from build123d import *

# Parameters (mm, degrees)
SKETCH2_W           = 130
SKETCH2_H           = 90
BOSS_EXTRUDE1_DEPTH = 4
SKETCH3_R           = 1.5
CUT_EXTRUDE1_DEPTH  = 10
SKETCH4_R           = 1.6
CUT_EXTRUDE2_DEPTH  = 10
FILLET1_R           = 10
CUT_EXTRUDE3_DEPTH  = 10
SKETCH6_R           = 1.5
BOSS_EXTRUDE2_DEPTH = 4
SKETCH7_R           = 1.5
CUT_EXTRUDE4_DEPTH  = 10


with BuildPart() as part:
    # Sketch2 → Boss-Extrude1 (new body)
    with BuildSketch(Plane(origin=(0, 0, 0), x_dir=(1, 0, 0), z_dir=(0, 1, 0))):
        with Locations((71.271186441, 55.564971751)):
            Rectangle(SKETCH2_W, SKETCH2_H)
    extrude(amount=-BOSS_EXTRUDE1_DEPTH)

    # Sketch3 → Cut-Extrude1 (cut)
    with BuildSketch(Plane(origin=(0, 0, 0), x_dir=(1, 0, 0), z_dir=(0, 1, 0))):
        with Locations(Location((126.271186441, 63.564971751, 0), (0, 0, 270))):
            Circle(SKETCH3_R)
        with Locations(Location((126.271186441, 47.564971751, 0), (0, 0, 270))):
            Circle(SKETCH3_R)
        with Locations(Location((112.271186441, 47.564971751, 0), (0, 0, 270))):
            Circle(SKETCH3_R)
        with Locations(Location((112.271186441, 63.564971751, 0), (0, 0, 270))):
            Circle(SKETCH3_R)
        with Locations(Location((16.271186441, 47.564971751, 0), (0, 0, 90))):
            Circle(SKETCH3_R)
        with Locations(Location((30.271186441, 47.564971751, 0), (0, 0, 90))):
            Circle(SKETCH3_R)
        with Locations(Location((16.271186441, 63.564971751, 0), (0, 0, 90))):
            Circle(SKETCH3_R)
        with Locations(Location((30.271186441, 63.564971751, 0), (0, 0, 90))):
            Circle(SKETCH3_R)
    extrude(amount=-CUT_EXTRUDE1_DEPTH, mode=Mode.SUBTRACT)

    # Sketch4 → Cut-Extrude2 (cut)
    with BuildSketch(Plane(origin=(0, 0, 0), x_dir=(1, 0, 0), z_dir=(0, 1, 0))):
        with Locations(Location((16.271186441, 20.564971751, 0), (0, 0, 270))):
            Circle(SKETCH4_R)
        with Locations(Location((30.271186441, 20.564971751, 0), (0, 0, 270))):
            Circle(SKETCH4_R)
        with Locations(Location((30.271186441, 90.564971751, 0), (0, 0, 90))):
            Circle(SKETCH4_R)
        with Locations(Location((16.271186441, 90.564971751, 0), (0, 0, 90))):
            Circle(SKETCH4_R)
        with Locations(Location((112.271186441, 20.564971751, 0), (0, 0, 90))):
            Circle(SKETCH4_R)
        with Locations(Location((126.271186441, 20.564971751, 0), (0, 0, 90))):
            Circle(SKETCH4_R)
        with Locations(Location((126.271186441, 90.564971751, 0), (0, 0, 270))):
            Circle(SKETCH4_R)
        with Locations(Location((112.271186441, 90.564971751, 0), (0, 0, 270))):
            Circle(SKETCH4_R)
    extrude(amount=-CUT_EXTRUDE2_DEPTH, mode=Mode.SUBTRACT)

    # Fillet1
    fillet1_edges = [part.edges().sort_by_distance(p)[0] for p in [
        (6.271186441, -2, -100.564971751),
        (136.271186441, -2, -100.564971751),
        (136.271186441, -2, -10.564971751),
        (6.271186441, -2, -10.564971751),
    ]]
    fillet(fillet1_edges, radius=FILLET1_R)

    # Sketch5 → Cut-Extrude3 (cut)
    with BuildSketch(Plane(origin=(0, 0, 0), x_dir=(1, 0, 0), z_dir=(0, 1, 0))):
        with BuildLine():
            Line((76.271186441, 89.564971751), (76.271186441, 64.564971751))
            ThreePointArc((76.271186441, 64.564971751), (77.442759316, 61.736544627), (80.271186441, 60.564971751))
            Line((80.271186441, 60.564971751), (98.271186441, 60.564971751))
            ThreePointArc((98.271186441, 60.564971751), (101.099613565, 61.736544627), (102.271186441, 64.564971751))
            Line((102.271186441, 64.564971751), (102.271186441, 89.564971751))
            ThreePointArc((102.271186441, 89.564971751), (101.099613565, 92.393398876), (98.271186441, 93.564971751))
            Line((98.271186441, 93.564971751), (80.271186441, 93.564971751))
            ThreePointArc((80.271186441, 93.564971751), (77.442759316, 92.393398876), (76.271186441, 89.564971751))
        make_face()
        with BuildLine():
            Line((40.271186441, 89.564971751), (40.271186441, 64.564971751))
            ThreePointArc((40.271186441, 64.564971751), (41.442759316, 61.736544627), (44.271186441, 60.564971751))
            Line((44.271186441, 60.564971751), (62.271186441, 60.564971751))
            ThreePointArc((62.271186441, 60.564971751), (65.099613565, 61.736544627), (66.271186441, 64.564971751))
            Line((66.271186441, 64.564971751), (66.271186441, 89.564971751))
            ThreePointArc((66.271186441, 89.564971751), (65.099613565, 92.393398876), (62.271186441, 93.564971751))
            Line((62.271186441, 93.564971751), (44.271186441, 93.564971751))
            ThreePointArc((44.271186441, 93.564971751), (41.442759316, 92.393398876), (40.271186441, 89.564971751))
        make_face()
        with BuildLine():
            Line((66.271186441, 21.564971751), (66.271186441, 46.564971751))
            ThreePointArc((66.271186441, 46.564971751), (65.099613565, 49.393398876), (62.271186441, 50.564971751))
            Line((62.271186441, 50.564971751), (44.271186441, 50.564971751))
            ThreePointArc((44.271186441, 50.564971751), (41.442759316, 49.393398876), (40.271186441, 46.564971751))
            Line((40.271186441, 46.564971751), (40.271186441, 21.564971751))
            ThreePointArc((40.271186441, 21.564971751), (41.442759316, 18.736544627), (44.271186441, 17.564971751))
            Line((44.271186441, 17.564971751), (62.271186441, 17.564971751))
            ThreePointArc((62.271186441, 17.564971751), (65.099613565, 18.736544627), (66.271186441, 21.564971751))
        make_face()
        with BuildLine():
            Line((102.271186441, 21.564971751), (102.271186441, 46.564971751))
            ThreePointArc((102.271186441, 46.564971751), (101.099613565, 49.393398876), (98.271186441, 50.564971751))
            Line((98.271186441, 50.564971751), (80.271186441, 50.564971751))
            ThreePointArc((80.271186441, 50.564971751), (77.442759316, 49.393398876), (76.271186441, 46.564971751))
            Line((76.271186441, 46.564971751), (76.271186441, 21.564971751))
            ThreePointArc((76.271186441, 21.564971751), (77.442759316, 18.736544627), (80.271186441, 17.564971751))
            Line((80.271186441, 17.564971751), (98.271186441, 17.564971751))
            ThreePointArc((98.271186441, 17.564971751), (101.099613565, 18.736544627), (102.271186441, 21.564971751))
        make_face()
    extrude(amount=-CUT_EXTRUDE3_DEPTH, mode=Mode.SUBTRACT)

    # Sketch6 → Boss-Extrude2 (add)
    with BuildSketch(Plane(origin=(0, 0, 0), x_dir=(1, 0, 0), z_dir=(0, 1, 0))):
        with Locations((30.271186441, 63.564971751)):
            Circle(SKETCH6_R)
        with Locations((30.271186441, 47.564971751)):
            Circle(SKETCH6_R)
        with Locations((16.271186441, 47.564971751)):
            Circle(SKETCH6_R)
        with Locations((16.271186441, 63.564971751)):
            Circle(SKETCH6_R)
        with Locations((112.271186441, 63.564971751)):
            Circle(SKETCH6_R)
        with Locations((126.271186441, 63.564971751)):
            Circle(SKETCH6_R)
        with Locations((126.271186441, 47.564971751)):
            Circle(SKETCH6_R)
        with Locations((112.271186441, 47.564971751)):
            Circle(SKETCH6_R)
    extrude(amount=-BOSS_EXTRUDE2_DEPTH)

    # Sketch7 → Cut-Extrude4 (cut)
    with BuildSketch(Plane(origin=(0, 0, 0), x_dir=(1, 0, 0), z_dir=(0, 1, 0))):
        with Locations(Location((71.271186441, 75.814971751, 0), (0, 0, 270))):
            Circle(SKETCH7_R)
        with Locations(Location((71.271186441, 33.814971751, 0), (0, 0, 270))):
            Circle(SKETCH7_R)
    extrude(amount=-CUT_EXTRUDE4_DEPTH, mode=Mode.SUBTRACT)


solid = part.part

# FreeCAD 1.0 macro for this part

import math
import FreeCAD as App
import Part
import Sketcher


def edges_at(feature, points):
    """Names of the edges that pass closest to the given points."""
    edges = feature.Shape.Edges
    near = lambda p: min(range(len(edges)), key=lambda i: edges[i].distToShape(Part.Vertex(*p))[0])
    return sorted({f"Edge{near(p) + 1}" for p in points})


def add_polygon(sketch, points):
    """Adds a closed chain of lines whose ends are joined by coincident constraints."""
    first, n = sketch.GeometryCount, len(points)
    for a, b in zip(points, points[1:] + points[:1]):
        sketch.addGeometry(Part.LineSegment(App.Vector(*a, 0), App.Vector(*b, 0)), False)
    for i in range(n):
        sketch.addConstraint(Sketcher.Constraint("Coincident", first + i, 2, first + (i + 1) % n, 1))

doc = App.newDocument("Part")
params = doc.addObject("Spreadsheet::Sheet", "Params")
for row, (alias, value) in enumerate([
    ("sketch1_width", "130 mm"),
    ("sketch1_height", "90 mm"),
    ("pad1_length", "4 mm"),
    ("sketch2_diameter", "3 mm"),
    ("pocket1_length", "10 mm"),
    ("sketch3_diameter", "3.2 mm"),
    ("pocket2_length", "10 mm"),
    ("fillet_radius", "10 mm"),
    ("sketch4_radius", "4 mm"),
    ("sketch4_width", "18 mm"),
    ("sketch4_height", "25 mm"),
    ("pocket3_length", "10 mm"),
    ("sketch5_diameter", "3 mm"),
    ("pad2_length", "4 mm"),
    ("sketch6_diameter", "3 mm"),
    ("pocket4_length", "10 mm"),
], start=1):
    params.set(f"A{row}", alias)
    params.set(f"B{row}", "=" + value)
    params.setAlias(f"B{row}", alias)

body = doc.addObject("PartDesign::Body", "Body")

# Sketch on XZ plane
sketch1 = body.newObject("Sketcher::SketchObject", "Sketch")
sketch1.AttachmentSupport = (doc.getObject("XZ_Plane"), [""])
sketch1.MapMode = "FlatFace"
add_polygon(sketch1, [(6.271186, -100.564972), (6.271186, -10.564972), (136.271186, -10.564972), (136.271186, -100.564972)])  # lines 0-3
sketch1.addConstraint(Sketcher.Constraint("Vertical", 0))
sketch1.addConstraint(Sketcher.Constraint("Horizontal", 1))
sketch1.addConstraint(Sketcher.Constraint("Vertical", 2))
sketch1.addConstraint(Sketcher.Constraint("Horizontal", 3))
sketch1.addConstraint(Sketcher.Constraint("DistanceX", 1, 1, 1, 2, 130.0))
sketch1.addConstraint(Sketcher.Constraint("DistanceY", 0, 1, 0, 2, 90.0))
sketch1.addConstraint(Sketcher.Constraint("DistanceY", 0, 2, -1, 1, 10.564972))
sketch1.addConstraint(Sketcher.Constraint("DistanceX", -1, 1, 0, 2, 6.271186))
sketch1.setExpression("Constraints[8]", "Params.sketch1_width")
sketch1.setExpression("Constraints[9]", "Params.sketch1_height")
pad1 = body.newObject("PartDesign::Pad", "Pad")
pad1.Profile = sketch1
pad1.setExpression("Length", "Params.pad1_length")

# Sketch on XZ plane
sketch2 = body.newObject("Sketcher::SketchObject", "Sketch001")
sketch2.AttachmentSupport = (doc.getObject("XZ_Plane"), [""])
sketch2.MapMode = "FlatFace"
sketch2.addGeometry(Part.Circle(App.Vector(126.271186, -63.564972, 0), App.Vector(0, 0, 1), 1.5), False)
sketch2.addGeometry(Part.Circle(App.Vector(126.271186, -47.564972, 0), App.Vector(0, 0, 1), 1.5), False)
sketch2.addGeometry(Part.Circle(App.Vector(112.271186, -47.564972, 0), App.Vector(0, 0, 1), 1.5), False)
sketch2.addGeometry(Part.Circle(App.Vector(112.271186, -63.564972, 0), App.Vector(0, 0, 1), 1.5), False)
sketch2.addGeometry(Part.Circle(App.Vector(16.271186, -47.564972, 0), App.Vector(0, 0, 1), 1.5), False)
sketch2.addGeometry(Part.Circle(App.Vector(30.271186, -47.564972, 0), App.Vector(0, 0, 1), 1.5), False)
sketch2.addGeometry(Part.Circle(App.Vector(16.271186, -63.564972, 0), App.Vector(0, 0, 1), 1.5), False)
sketch2.addGeometry(Part.Circle(App.Vector(30.271186, -63.564972, 0), App.Vector(0, 0, 1), 1.5), False)
sketch2.addConstraint(Sketcher.Constraint("Equal", 0, 1))
sketch2.addConstraint(Sketcher.Constraint("Equal", 1, 2))
sketch2.addConstraint(Sketcher.Constraint("Equal", 2, 3))
sketch2.addConstraint(Sketcher.Constraint("Equal", 3, 4))
sketch2.addConstraint(Sketcher.Constraint("Equal", 4, 5))
sketch2.addConstraint(Sketcher.Constraint("Equal", 5, 6))
sketch2.addConstraint(Sketcher.Constraint("Equal", 6, 7))
sketch2.addConstraint(Sketcher.Constraint("Horizontal", 1, 3, 2, 3))
sketch2.addConstraint(Sketcher.Constraint("Horizontal", 0, 3, 3, 3))
sketch2.addConstraint(Sketcher.Constraint("Horizontal", 2, 3, 4, 3))
sketch2.addConstraint(Sketcher.Constraint("Horizontal", 4, 3, 5, 3))
sketch2.addConstraint(Sketcher.Constraint("Horizontal", 3, 3, 6, 3))
sketch2.addConstraint(Sketcher.Constraint("Horizontal", 6, 3, 7, 3))
sketch2.addConstraint(Sketcher.Constraint("Vertical", 0, 3, 1, 3))
sketch2.addConstraint(Sketcher.Constraint("Vertical", 2, 3, 3, 3))
sketch2.addConstraint(Sketcher.Constraint("Vertical", 4, 3, 6, 3))
sketch2.addConstraint(Sketcher.Constraint("Vertical", 5, 3, 7, 3))
sketch2.addConstraint(Sketcher.Constraint("Diameter", 0, 3.0))
sketch2.addConstraint(Sketcher.Constraint("DistanceY", 0, 3, 1, 3, 16.0))
sketch2.addConstraint(Sketcher.Constraint("DistanceX", 2, 3, 1, 3, 14.0))
sketch2.addConstraint(Sketcher.Constraint("DistanceX", 4, 3, 2, 3, 96.0))
sketch2.addConstraint(Sketcher.Constraint("DistanceX", 4, 3, 5, 3, 14.0))
sketch2.addConstraint(Sketcher.Constraint("DistanceY", 0, 3, -1, 1, 63.564972))
sketch2.addConstraint(Sketcher.Constraint("DistanceX", -1, 1, 0, 3, 126.271186))
sketch2.setExpression("Constraints[17]", "Params.sketch2_diameter")
pocket1 = body.newObject("PartDesign::Pocket", "Pocket")
pocket1.Profile = sketch2
pocket1.setExpression("Length", "Params.pocket1_length")
pocket1.Reversed = True

# Sketch on XZ plane
sketch3 = body.newObject("Sketcher::SketchObject", "Sketch002")
sketch3.AttachmentSupport = (doc.getObject("XZ_Plane"), [""])
sketch3.MapMode = "FlatFace"
sketch3.addGeometry(Part.Circle(App.Vector(16.271186, -20.564972, 0), App.Vector(0, 0, 1), 1.6), False)
sketch3.addGeometry(Part.Circle(App.Vector(30.271186, -20.564972, 0), App.Vector(0, 0, 1), 1.6), False)
sketch3.addGeometry(Part.Circle(App.Vector(30.271186, -90.564972, 0), App.Vector(0, 0, 1), 1.6), False)
sketch3.addGeometry(Part.Circle(App.Vector(16.271186, -90.564972, 0), App.Vector(0, 0, 1), 1.6), False)
sketch3.addGeometry(Part.Circle(App.Vector(112.271186, -20.564972, 0), App.Vector(0, 0, 1), 1.6), False)
sketch3.addGeometry(Part.Circle(App.Vector(126.271186, -20.564972, 0), App.Vector(0, 0, 1), 1.6), False)
sketch3.addGeometry(Part.Circle(App.Vector(126.271186, -90.564972, 0), App.Vector(0, 0, 1), 1.6), False)
sketch3.addGeometry(Part.Circle(App.Vector(112.271186, -90.564972, 0), App.Vector(0, 0, 1), 1.6), False)
sketch3.addConstraint(Sketcher.Constraint("Equal", 0, 1))
sketch3.addConstraint(Sketcher.Constraint("Equal", 1, 2))
sketch3.addConstraint(Sketcher.Constraint("Equal", 2, 3))
sketch3.addConstraint(Sketcher.Constraint("Equal", 3, 4))
sketch3.addConstraint(Sketcher.Constraint("Equal", 4, 5))
sketch3.addConstraint(Sketcher.Constraint("Equal", 5, 6))
sketch3.addConstraint(Sketcher.Constraint("Equal", 6, 7))
sketch3.addConstraint(Sketcher.Constraint("Horizontal", 0, 3, 1, 3))
sketch3.addConstraint(Sketcher.Constraint("Horizontal", 2, 3, 3, 3))
sketch3.addConstraint(Sketcher.Constraint("Horizontal", 1, 3, 4, 3))
sketch3.addConstraint(Sketcher.Constraint("Horizontal", 4, 3, 5, 3))
sketch3.addConstraint(Sketcher.Constraint("Horizontal", 3, 3, 6, 3))
sketch3.addConstraint(Sketcher.Constraint("Horizontal", 6, 3, 7, 3))
sketch3.addConstraint(Sketcher.Constraint("Vertical", 1, 3, 2, 3))
sketch3.addConstraint(Sketcher.Constraint("Vertical", 0, 3, 3, 3))
sketch3.addConstraint(Sketcher.Constraint("Vertical", 5, 3, 6, 3))
sketch3.addConstraint(Sketcher.Constraint("Vertical", 4, 3, 7, 3))
sketch3.addConstraint(Sketcher.Constraint("Diameter", 0, 3.2))
sketch3.addConstraint(Sketcher.Constraint("DistanceX", 0, 3, 1, 3, 14.0))
sketch3.addConstraint(Sketcher.Constraint("DistanceY", 2, 3, 1, 3, 70.0))
sketch3.addConstraint(Sketcher.Constraint("DistanceX", 1, 3, 4, 3, 82.0))
sketch3.addConstraint(Sketcher.Constraint("DistanceX", 4, 3, 5, 3, 14.0))
sketch3.addConstraint(Sketcher.Constraint("DistanceY", 0, 3, -1, 1, 20.564972))
sketch3.addConstraint(Sketcher.Constraint("DistanceX", -1, 1, 0, 3, 16.271186))
sketch3.setExpression("Constraints[17]", "Params.sketch3_diameter")
pocket2 = body.newObject("PartDesign::Pocket", "Pocket001")
pocket2.Profile = sketch3
pocket2.setExpression("Length", "Params.pocket2_length")
pocket2.Reversed = True
doc.recompute()

fillet = body.newObject("PartDesign::Fillet", "Fillet")
fillet.Base = (pocket2, edges_at(pocket2, [
    (6.271, -2, -100.565),
    (136.271, -2, -100.565),
    (136.271, -2, -10.565),
    (6.271, -2, -10.565),
]))
fillet.setExpression("Radius", "Params.fillet_radius")

# Sketch on XZ plane
sketch4 = body.newObject("Sketcher::SketchObject", "Sketch003")
sketch4.AttachmentSupport = (doc.getObject("XZ_Plane"), [""])
sketch4.MapMode = "FlatFace"
sketch4.addGeometry(Part.LineSegment(App.Vector(76.271186, -89.564972, 0), App.Vector(76.271186, -64.564972, 0)), False)
sketch4.addGeometry(Part.ArcOfCircle(Part.Circle(App.Vector(80.271186, -64.564972, 0), App.Vector(0, 0, 1), 4), math.radians(90), math.radians(180)), False)
sketch4.addGeometry(Part.LineSegment(App.Vector(80.271186, -60.564972, 0), App.Vector(98.271186, -60.564972, 0)), False)
sketch4.addGeometry(Part.ArcOfCircle(Part.Circle(App.Vector(98.271186, -64.564972, 0), App.Vector(0, 0, 1), 4), math.radians(0), math.radians(90)), False)
sketch4.addGeometry(Part.LineSegment(App.Vector(102.271186, -64.564972, 0), App.Vector(102.271186, -89.564972, 0)), False)
sketch4.addGeometry(Part.ArcOfCircle(Part.Circle(App.Vector(98.271186, -89.564972, 0), App.Vector(0, 0, 1), 4), math.radians(-90), math.radians(0)), False)
sketch4.addGeometry(Part.LineSegment(App.Vector(98.271186, -93.564972, 0), App.Vector(80.271186, -93.564972, 0)), False)
sketch4.addGeometry(Part.ArcOfCircle(Part.Circle(App.Vector(80.271186, -89.564972, 0), App.Vector(0, 0, 1), 4), math.radians(180), math.radians(270)), False)
sketch4.addGeometry(Part.LineSegment(App.Vector(40.271186, -89.564972, 0), App.Vector(40.271186, -64.564972, 0)), False)
sketch4.addGeometry(Part.ArcOfCircle(Part.Circle(App.Vector(44.271186, -64.564972, 0), App.Vector(0, 0, 1), 4), math.radians(90), math.radians(180)), False)
sketch4.addGeometry(Part.LineSegment(App.Vector(44.271186, -60.564972, 0), App.Vector(62.271186, -60.564972, 0)), False)
sketch4.addGeometry(Part.ArcOfCircle(Part.Circle(App.Vector(62.271186, -64.564972, 0), App.Vector(0, 0, 1), 4), math.radians(0), math.radians(90)), False)
sketch4.addGeometry(Part.LineSegment(App.Vector(66.271186, -64.564972, 0), App.Vector(66.271186, -89.564972, 0)), False)
sketch4.addGeometry(Part.ArcOfCircle(Part.Circle(App.Vector(62.271186, -89.564972, 0), App.Vector(0, 0, 1), 4), math.radians(-90), math.radians(0)), False)
sketch4.addGeometry(Part.LineSegment(App.Vector(62.271186, -93.564972, 0), App.Vector(44.271186, -93.564972, 0)), False)
sketch4.addGeometry(Part.ArcOfCircle(Part.Circle(App.Vector(44.271186, -89.564972, 0), App.Vector(0, 0, 1), 4), math.radians(180), math.radians(270)), False)
sketch4.addGeometry(Part.LineSegment(App.Vector(66.271186, -21.564972, 0), App.Vector(66.271186, -46.564972, 0)), False)
sketch4.addGeometry(Part.ArcOfCircle(Part.Circle(App.Vector(62.271186, -46.564972, 0), App.Vector(0, 0, 1), 4), math.radians(-90), math.radians(0)), False)
sketch4.addGeometry(Part.LineSegment(App.Vector(62.271186, -50.564972, 0), App.Vector(44.271186, -50.564972, 0)), False)
sketch4.addGeometry(Part.ArcOfCircle(Part.Circle(App.Vector(44.271186, -46.564972, 0), App.Vector(0, 0, 1), 4), math.radians(180), math.radians(270)), False)
sketch4.addGeometry(Part.LineSegment(App.Vector(40.271186, -46.564972, 0), App.Vector(40.271186, -21.564972, 0)), False)
sketch4.addGeometry(Part.ArcOfCircle(Part.Circle(App.Vector(44.271186, -21.564972, 0), App.Vector(0, 0, 1), 4), math.radians(90), math.radians(180)), False)
sketch4.addGeometry(Part.LineSegment(App.Vector(44.271186, -17.564972, 0), App.Vector(62.271186, -17.564972, 0)), False)
sketch4.addGeometry(Part.ArcOfCircle(Part.Circle(App.Vector(62.271186, -21.564972, 0), App.Vector(0, 0, 1), 4), math.radians(0), math.radians(90)), False)
sketch4.addGeometry(Part.LineSegment(App.Vector(102.271186, -21.564972, 0), App.Vector(102.271186, -46.564972, 0)), False)
sketch4.addGeometry(Part.ArcOfCircle(Part.Circle(App.Vector(98.271186, -46.564972, 0), App.Vector(0, 0, 1), 4), math.radians(-90), math.radians(0)), False)
sketch4.addGeometry(Part.LineSegment(App.Vector(98.271186, -50.564972, 0), App.Vector(80.271186, -50.564972, 0)), False)
sketch4.addGeometry(Part.ArcOfCircle(Part.Circle(App.Vector(80.271186, -46.564972, 0), App.Vector(0, 0, 1), 4), math.radians(180), math.radians(270)), False)
sketch4.addGeometry(Part.LineSegment(App.Vector(76.271186, -46.564972, 0), App.Vector(76.271186, -21.564972, 0)), False)
sketch4.addGeometry(Part.ArcOfCircle(Part.Circle(App.Vector(80.271186, -21.564972, 0), App.Vector(0, 0, 1), 4), math.radians(90), math.radians(180)), False)
sketch4.addGeometry(Part.LineSegment(App.Vector(80.271186, -17.564972, 0), App.Vector(98.271186, -17.564972, 0)), False)
sketch4.addGeometry(Part.ArcOfCircle(Part.Circle(App.Vector(98.271186, -21.564972, 0), App.Vector(0, 0, 1), 4), math.radians(0), math.radians(90)), False)
sketch4.addConstraint(Sketcher.Constraint("Tangent", 0, 2, 1, 2))
sketch4.addConstraint(Sketcher.Constraint("Tangent", 1, 1, 2, 1))
sketch4.addConstraint(Sketcher.Constraint("Tangent", 2, 2, 3, 2))
sketch4.addConstraint(Sketcher.Constraint("Tangent", 3, 1, 4, 1))
sketch4.addConstraint(Sketcher.Constraint("Tangent", 4, 2, 5, 2))
sketch4.addConstraint(Sketcher.Constraint("Tangent", 5, 1, 6, 1))
sketch4.addConstraint(Sketcher.Constraint("Tangent", 6, 2, 7, 2))
sketch4.addConstraint(Sketcher.Constraint("Tangent", 7, 1, 0, 1))
sketch4.addConstraint(Sketcher.Constraint("Tangent", 8, 2, 9, 2))
sketch4.addConstraint(Sketcher.Constraint("Tangent", 9, 1, 10, 1))
sketch4.addConstraint(Sketcher.Constraint("Tangent", 10, 2, 11, 2))
sketch4.addConstraint(Sketcher.Constraint("Tangent", 11, 1, 12, 1))
sketch4.addConstraint(Sketcher.Constraint("Tangent", 12, 2, 13, 2))
sketch4.addConstraint(Sketcher.Constraint("Tangent", 13, 1, 14, 1))
sketch4.addConstraint(Sketcher.Constraint("Tangent", 14, 2, 15, 2))
sketch4.addConstraint(Sketcher.Constraint("Tangent", 15, 1, 8, 1))
sketch4.addConstraint(Sketcher.Constraint("Tangent", 16, 2, 17, 2))
sketch4.addConstraint(Sketcher.Constraint("Tangent", 17, 1, 18, 1))
sketch4.addConstraint(Sketcher.Constraint("Tangent", 18, 2, 19, 2))
sketch4.addConstraint(Sketcher.Constraint("Tangent", 19, 1, 20, 1))
sketch4.addConstraint(Sketcher.Constraint("Tangent", 20, 2, 21, 2))
sketch4.addConstraint(Sketcher.Constraint("Tangent", 21, 1, 22, 1))
sketch4.addConstraint(Sketcher.Constraint("Tangent", 22, 2, 23, 2))
sketch4.addConstraint(Sketcher.Constraint("Tangent", 23, 1, 16, 1))
sketch4.addConstraint(Sketcher.Constraint("Tangent", 24, 2, 25, 2))
sketch4.addConstraint(Sketcher.Constraint("Tangent", 25, 1, 26, 1))
sketch4.addConstraint(Sketcher.Constraint("Tangent", 26, 2, 27, 2))
sketch4.addConstraint(Sketcher.Constraint("Tangent", 27, 1, 28, 1))
sketch4.addConstraint(Sketcher.Constraint("Tangent", 28, 2, 29, 2))
sketch4.addConstraint(Sketcher.Constraint("Tangent", 29, 1, 30, 1))
sketch4.addConstraint(Sketcher.Constraint("Tangent", 30, 2, 31, 2))
sketch4.addConstraint(Sketcher.Constraint("Tangent", 31, 1, 24, 1))
sketch4.addConstraint(Sketcher.Constraint("Vertical", 0))
sketch4.addConstraint(Sketcher.Constraint("Horizontal", 2))
sketch4.addConstraint(Sketcher.Constraint("Vertical", 4))
sketch4.addConstraint(Sketcher.Constraint("Horizontal", 6))
sketch4.addConstraint(Sketcher.Constraint("Vertical", 8))
sketch4.addConstraint(Sketcher.Constraint("Horizontal", 10))
sketch4.addConstraint(Sketcher.Constraint("Vertical", 12))
sketch4.addConstraint(Sketcher.Constraint("Horizontal", 14))
sketch4.addConstraint(Sketcher.Constraint("Vertical", 16))
sketch4.addConstraint(Sketcher.Constraint("Horizontal", 18))
sketch4.addConstraint(Sketcher.Constraint("Vertical", 20))
sketch4.addConstraint(Sketcher.Constraint("Horizontal", 22))
sketch4.addConstraint(Sketcher.Constraint("Vertical", 24))
sketch4.addConstraint(Sketcher.Constraint("Horizontal", 26))
sketch4.addConstraint(Sketcher.Constraint("Vertical", 28))
sketch4.addConstraint(Sketcher.Constraint("Horizontal", 30))
sketch4.addConstraint(Sketcher.Constraint("Equal", 1, 3))
sketch4.addConstraint(Sketcher.Constraint("Equal", 3, 5))
sketch4.addConstraint(Sketcher.Constraint("Equal", 5, 7))
sketch4.addConstraint(Sketcher.Constraint("Equal", 7, 9))
sketch4.addConstraint(Sketcher.Constraint("Equal", 9, 11))
sketch4.addConstraint(Sketcher.Constraint("Equal", 11, 13))
sketch4.addConstraint(Sketcher.Constraint("Equal", 13, 15))
sketch4.addConstraint(Sketcher.Constraint("Equal", 15, 17))
sketch4.addConstraint(Sketcher.Constraint("Equal", 17, 19))
sketch4.addConstraint(Sketcher.Constraint("Equal", 19, 21))
sketch4.addConstraint(Sketcher.Constraint("Equal", 21, 23))
sketch4.addConstraint(Sketcher.Constraint("Equal", 23, 25))
sketch4.addConstraint(Sketcher.Constraint("Equal", 25, 27))
sketch4.addConstraint(Sketcher.Constraint("Equal", 27, 29))
sketch4.addConstraint(Sketcher.Constraint("Equal", 29, 31))
sketch4.addConstraint(Sketcher.Constraint("Horizontal", 3, 3, 9, 3))
sketch4.addConstraint(Sketcher.Constraint("Horizontal", 7, 3, 13, 3))
sketch4.addConstraint(Sketcher.Constraint("Horizontal", 19, 3, 25, 3))
sketch4.addConstraint(Sketcher.Constraint("Horizontal", 23, 3, 29, 3))
sketch4.addConstraint(Sketcher.Constraint("Vertical", 13, 3, 17, 3))
sketch4.addConstraint(Sketcher.Constraint("Vertical", 15, 3, 19, 3))
sketch4.addConstraint(Sketcher.Constraint("Vertical", 5, 3, 25, 3))
sketch4.addConstraint(Sketcher.Constraint("Vertical", 7, 3, 27, 3))
sketch4.addConstraint(Sketcher.Constraint("Equal", 6, 10))
sketch4.addConstraint(Sketcher.Constraint("Equal", 12, 16))
sketch4.addConstraint(Sketcher.Constraint("Radius", 1, 4.0))
sketch4.addConstraint(Sketcher.Constraint("DistanceX", 2, 1, 2, 2, 18.0))
sketch4.addConstraint(Sketcher.Constraint("DistanceY", 0, 1, 0, 2, 25.0))
sketch4.addConstraint(Sketcher.Constraint("DistanceX", 9, 3, 1, 3, 36.0))
sketch4.addConstraint(Sketcher.Constraint("DistanceY", 11, 3, 17, 3, 18.0))
sketch4.addConstraint(Sketcher.Constraint("DistanceY", 1, 3, -1, 1, 64.564972))
sketch4.addConstraint(Sketcher.Constraint("DistanceX", -1, 1, 1, 3, 80.271186))
sketch4.setExpression("Constraints[73]", "Params.sketch4_radius")
sketch4.setExpression("Constraints[74]", "Params.sketch4_width")
sketch4.setExpression("Constraints[75]", "Params.sketch4_height")
pocket3 = body.newObject("PartDesign::Pocket", "Pocket002")
pocket3.Profile = sketch4
pocket3.setExpression("Length", "Params.pocket3_length")
pocket3.Reversed = True

# Sketch on XZ plane
sketch5 = body.newObject("Sketcher::SketchObject", "Sketch004")
sketch5.AttachmentSupport = (doc.getObject("XZ_Plane"), [""])
sketch5.MapMode = "FlatFace"
sketch5.addGeometry(Part.Circle(App.Vector(30.271186, -63.564972, 0), App.Vector(0, 0, 1), 1.5), False)
sketch5.addGeometry(Part.Circle(App.Vector(30.271186, -47.564972, 0), App.Vector(0, 0, 1), 1.5), False)
sketch5.addGeometry(Part.Circle(App.Vector(16.271186, -47.564972, 0), App.Vector(0, 0, 1), 1.5), False)
sketch5.addGeometry(Part.Circle(App.Vector(16.271186, -63.564972, 0), App.Vector(0, 0, 1), 1.5), False)
sketch5.addGeometry(Part.Circle(App.Vector(112.271186, -63.564972, 0), App.Vector(0, 0, 1), 1.5), False)
sketch5.addGeometry(Part.Circle(App.Vector(126.271186, -63.564972, 0), App.Vector(0, 0, 1), 1.5), False)
sketch5.addGeometry(Part.Circle(App.Vector(126.271186, -47.564972, 0), App.Vector(0, 0, 1), 1.5), False)
sketch5.addGeometry(Part.Circle(App.Vector(112.271186, -47.564972, 0), App.Vector(0, 0, 1), 1.5), False)
sketch5.addConstraint(Sketcher.Constraint("Equal", 0, 1))
sketch5.addConstraint(Sketcher.Constraint("Equal", 1, 2))
sketch5.addConstraint(Sketcher.Constraint("Equal", 2, 3))
sketch5.addConstraint(Sketcher.Constraint("Equal", 3, 4))
sketch5.addConstraint(Sketcher.Constraint("Equal", 4, 5))
sketch5.addConstraint(Sketcher.Constraint("Equal", 5, 6))
sketch5.addConstraint(Sketcher.Constraint("Equal", 6, 7))
sketch5.addConstraint(Sketcher.Constraint("Horizontal", 1, 3, 2, 3))
sketch5.addConstraint(Sketcher.Constraint("Horizontal", 0, 3, 3, 3))
sketch5.addConstraint(Sketcher.Constraint("Horizontal", 3, 3, 4, 3))
sketch5.addConstraint(Sketcher.Constraint("Horizontal", 4, 3, 5, 3))
sketch5.addConstraint(Sketcher.Constraint("Horizontal", 2, 3, 6, 3))
sketch5.addConstraint(Sketcher.Constraint("Horizontal", 6, 3, 7, 3))
sketch5.addConstraint(Sketcher.Constraint("Vertical", 0, 3, 1, 3))
sketch5.addConstraint(Sketcher.Constraint("Vertical", 2, 3, 3, 3))
sketch5.addConstraint(Sketcher.Constraint("Vertical", 5, 3, 6, 3))
sketch5.addConstraint(Sketcher.Constraint("Vertical", 4, 3, 7, 3))
sketch5.addConstraint(Sketcher.Constraint("Diameter", 0, 3.0))
sketch5.addConstraint(Sketcher.Constraint("DistanceY", 0, 3, 1, 3, 16.0))
sketch5.addConstraint(Sketcher.Constraint("DistanceX", 2, 3, 1, 3, 14.0))
sketch5.addConstraint(Sketcher.Constraint("DistanceX", 0, 3, 4, 3, 82.0))
sketch5.addConstraint(Sketcher.Constraint("DistanceX", 4, 3, 5, 3, 14.0))
sketch5.addConstraint(Sketcher.Constraint("DistanceY", 0, 3, -1, 1, 63.564972))
sketch5.addConstraint(Sketcher.Constraint("DistanceX", -1, 1, 0, 3, 30.271186))
sketch5.setExpression("Constraints[17]", "Params.sketch5_diameter")
pad2 = body.newObject("PartDesign::Pad", "Pad001")
pad2.Profile = sketch5
pad2.setExpression("Length", "Params.pad2_length")

# Sketch on XZ plane
sketch6 = body.newObject("Sketcher::SketchObject", "Sketch005")
sketch6.AttachmentSupport = (doc.getObject("XZ_Plane"), [""])
sketch6.MapMode = "FlatFace"
sketch6.addGeometry(Part.Circle(App.Vector(71.271186, -75.814972, 0), App.Vector(0, 0, 1), 1.5), False)
sketch6.addGeometry(Part.Circle(App.Vector(71.271186, -33.814972, 0), App.Vector(0, 0, 1), 1.5), False)
sketch6.addConstraint(Sketcher.Constraint("Equal", 0, 1))
sketch6.addConstraint(Sketcher.Constraint("Vertical", 0, 3, 1, 3))
sketch6.addConstraint(Sketcher.Constraint("Diameter", 0, 3.0))
sketch6.addConstraint(Sketcher.Constraint("DistanceY", 0, 3, 1, 3, 42.0))
sketch6.addConstraint(Sketcher.Constraint("DistanceY", 0, 3, -1, 1, 75.814972))
sketch6.addConstraint(Sketcher.Constraint("DistanceX", -1, 1, 0, 3, 71.271186))
sketch6.setExpression("Constraints[2]", "Params.sketch6_diameter")
pocket4 = body.newObject("PartDesign::Pocket", "Pocket003")
pocket4.Profile = sketch6
pocket4.setExpression("Length", "Params.pocket4_length")
pocket4.Reversed = True

doc.recompute()
